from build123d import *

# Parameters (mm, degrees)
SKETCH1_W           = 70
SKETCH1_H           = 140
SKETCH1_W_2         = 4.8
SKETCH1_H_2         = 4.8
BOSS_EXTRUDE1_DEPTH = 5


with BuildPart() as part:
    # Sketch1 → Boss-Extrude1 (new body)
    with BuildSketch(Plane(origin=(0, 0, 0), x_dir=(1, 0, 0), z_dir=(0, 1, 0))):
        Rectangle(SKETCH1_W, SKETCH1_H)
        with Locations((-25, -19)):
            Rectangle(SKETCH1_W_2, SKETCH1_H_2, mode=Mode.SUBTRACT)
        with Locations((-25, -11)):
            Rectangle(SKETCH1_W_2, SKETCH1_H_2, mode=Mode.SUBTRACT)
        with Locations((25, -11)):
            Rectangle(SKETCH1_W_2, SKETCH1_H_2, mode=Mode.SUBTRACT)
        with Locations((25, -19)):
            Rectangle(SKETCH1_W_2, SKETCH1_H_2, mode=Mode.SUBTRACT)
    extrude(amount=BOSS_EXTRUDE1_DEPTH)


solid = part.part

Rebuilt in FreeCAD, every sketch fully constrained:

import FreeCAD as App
import Part
import Sketcher

V = App.Vector
Q = App.Units.Quantity


def add_polygon(sketch, points):
    """Adds a closed chain of lines whose ends are joined by coincident constraints."""
    first, n = sketch.GeometryCount, len(points)
    for a, b in zip(points, points[1:] + points[:1]):
        sketch.addGeometry(Part.LineSegment(App.Vector(*a, 0), App.Vector(*b, 0)), False)
    for i in range(n):
        sketch.addConstraint(Sketcher.Constraint("Coincident", first + i, 2, first + (i + 1) % n, 1))

doc = App.newDocument("Part")
params = doc.addObject("Spreadsheet::Sheet", "Params")
for row, (alias, value) in enumerate([
    ("sketch1_width", "70 mm"),
    ("sketch1_height", "140 mm"),
    ("sketch1_width2", "4.8 mm"),
    ("pad1_length", "5 mm"),
], start=1):
    params.set(f"A{row}", alias)
    params.set(f"B{row}", "=" + value)
    params.setAlias(f"B{row}", alias)

body = doc.addObject("PartDesign::Body", "Body")

# Sketch on XZ plane
sketch1 = body.newObject("Sketcher::SketchObject", "Sketch")
sketch1.AttachmentSupport = (doc.getObject("XZ_Plane"), [""])
sketch1.MapMode = "FlatFace"
add_polygon(sketch1, [(-35, -70), (-35, 70), (35, 70), (35, -70)])  # lines 0-3
add_polygon(sketch1, [(-22.6, 21.4), (-27.4, 21.4), (-27.4, 16.6), (-22.6, 16.6)])  # lines 4-7
add_polygon(sketch1, [(27.4, 21.4), (22.6, 21.4), (22.6, 16.6), (27.4, 16.6)])  # lines 8-11
add_polygon(sketch1, [(-22.6, 13.4), (-27.4, 13.4), (-27.4, 8.6), (-22.6, 8.6)])  # lines 12-15
add_polygon(sketch1, [(27.4, 13.4), (22.6, 13.4), (22.6, 8.6), (27.4, 8.6)])  # lines 16-19
sketch1.addConstraint([
    Sketcher.Constraint("Vertical", 0),
    Sketcher.Constraint("Horizontal", 1),
    Sketcher.Constraint("Vertical", 2),
    Sketcher.Constraint("Horizontal", 3),
    Sketcher.Constraint("Horizontal", 4),
    Sketcher.Constraint("Vertical", 5),
    Sketcher.Constraint("Horizontal", 6),
    Sketcher.Constraint("Vertical", 7),
    Sketcher.Constraint("Horizontal", 8),
    Sketcher.Constraint("Vertical", 9),
    Sketcher.Constraint("Horizontal", 10),
    Sketcher.Constraint("Vertical", 11),
    Sketcher.Constraint("Horizontal", 12),
    Sketcher.Constraint("Vertical", 13),
    Sketcher.Constraint("Horizontal", 14),
    Sketcher.Constraint("Vertical", 15),
    Sketcher.Constraint("Horizontal", 16),
    Sketcher.Constraint("Vertical", 17),
    Sketcher.Constraint("Horizontal", 18),
    Sketcher.Constraint("Vertical", 19),
    Sketcher.Constraint("Symmetric", 0, 2, 2, 2, -1, 1),
    Sketcher.Constraint("Symmetric", 7, 2, 8, 2, -2),
    Sketcher.Constraint("Symmetric", 5, 2, 10, 2, -2),
    Sketcher.Constraint("Symmetric", 15, 2, 16, 2, -2),
    Sketcher.Constraint("Symmetric", 13, 2, 18, 2, -2),
    Sketcher.Constraint("Vertical", 5, 2, 12, 2),
    Sketcher.Constraint("Vertical", 7, 2, 14, 2),
    Sketcher.Constraint("Equal", 18, 5),
    Sketcher.Constraint("Equal", 11, 13),
    Sketcher.Constraint("DistanceX", 1, 1, 1, 2, Q("70 mm")),
    Sketcher.Constraint("DistanceY", 0, 1, 0, 2, Q("140 mm")),
    Sketcher.Constraint("DistanceX", 4, 2, 4, 1, Q("4.8 mm")),
    Sketcher.Constraint("DistanceX", 4, 2, 8, 2, Q("50 mm")),
    Sketcher.Constraint("DistanceY", 12, 2, 4, 2, Q("8 mm")),
    Sketcher.Constraint("DistanceY", -1, 1, 4, 2, Q("21.4 mm")),
])
sketch1.setExpression("Constraints[49]", "Params.sketch1_width")
sketch1.setExpression("Constraints[50]", "Params.sketch1_height")
sketch1.setExpression("Constraints[51]", "Params.sketch1_width2")
pad1 = body.newObject("PartDesign::Pad", "Pad")
pad1.Profile = sketch1
pad1.setExpression("Length", "Params.pad1_length")
pad1.Reversed = True

doc.recompute()
